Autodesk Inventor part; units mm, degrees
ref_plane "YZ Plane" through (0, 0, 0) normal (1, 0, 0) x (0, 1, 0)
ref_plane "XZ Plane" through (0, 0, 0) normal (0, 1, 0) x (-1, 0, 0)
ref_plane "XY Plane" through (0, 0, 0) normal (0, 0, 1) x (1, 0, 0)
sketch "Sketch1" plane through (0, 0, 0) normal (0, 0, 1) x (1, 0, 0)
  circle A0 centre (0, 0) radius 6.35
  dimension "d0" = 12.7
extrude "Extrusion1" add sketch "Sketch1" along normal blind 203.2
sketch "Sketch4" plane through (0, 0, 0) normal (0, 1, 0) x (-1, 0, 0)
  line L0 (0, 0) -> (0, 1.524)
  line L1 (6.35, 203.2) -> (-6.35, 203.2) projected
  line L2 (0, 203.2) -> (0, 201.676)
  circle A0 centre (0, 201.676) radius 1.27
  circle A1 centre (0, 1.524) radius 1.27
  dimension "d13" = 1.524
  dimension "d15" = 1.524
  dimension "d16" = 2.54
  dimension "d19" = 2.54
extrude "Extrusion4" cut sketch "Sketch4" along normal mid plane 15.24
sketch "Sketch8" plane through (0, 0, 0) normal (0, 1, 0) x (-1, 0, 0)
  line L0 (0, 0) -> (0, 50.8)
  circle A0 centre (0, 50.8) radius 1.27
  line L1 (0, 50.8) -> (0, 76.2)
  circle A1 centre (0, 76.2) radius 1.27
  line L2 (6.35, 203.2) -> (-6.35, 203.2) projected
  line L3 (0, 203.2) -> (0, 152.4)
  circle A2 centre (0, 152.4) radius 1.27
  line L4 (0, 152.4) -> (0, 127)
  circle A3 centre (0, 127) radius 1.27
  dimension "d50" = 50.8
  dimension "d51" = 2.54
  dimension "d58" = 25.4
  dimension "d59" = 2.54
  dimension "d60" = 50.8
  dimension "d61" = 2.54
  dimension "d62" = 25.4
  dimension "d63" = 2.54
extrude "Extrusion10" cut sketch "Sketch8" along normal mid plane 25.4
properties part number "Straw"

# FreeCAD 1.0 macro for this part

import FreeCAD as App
import Part
import Sketcher
from FreeCAD import Vector
Q = App.Units.Quantity

doc = App.newDocument("Part")
body = doc.addObject("PartDesign::Body", "Body")

# Sketch on XY plane
sketch1 = body.newObject("Sketcher::SketchObject", "Sketch")
sketch1.AttachmentSupport = (doc.getObject("XY_Plane"), [""])
sketch1.MapMode = "FlatFace"
sketch1.addGeometry(Part.Circle(Vector(0, 0, 0), Vector(0, 0, 1), 6), False)
sketch1.addConstraint([
    Sketcher.Constraint("Coincident", 0, 3, -1, 1),
    Sketcher.Constraint("Diameter", 0, Q("0.5 in")),
])
pad1 = body.newObject("PartDesign::Pad", "Pad")
pad1.Profile = sketch1
pad1.Length = Q("8 in")

# Sketch on XZ plane
sketch2 = body.newObject("Sketcher::SketchObject", "Sketch001")
sketch2.AttachmentSupport = (doc.getObject("XZ_Plane"), [""])
sketch2.MapMode = "FlatFace"
sketch2.addGeometry([
    Part.Circle(Vector(0, 201.7, 0), Vector(0, 0, 1), 1.3),
    Part.Circle(Vector(0, 1.5, 0), Vector(0, 0, 1), 1.3),
], False)
sketch2.addConstraint([
    Sketcher.Constraint("Equal", 0, 1),
    Sketcher.Constraint("PointOnObject", 0, 3, -2),
    Sketcher.Constraint("PointOnObject", 1, 3, -2),
    Sketcher.Constraint("Diameter", 0, Q("0.1 in")),
    Sketcher.Constraint("DistanceY", -1, 1, 1, 3, Q("0.06 in")),
    Sketcher.Constraint("DistanceY", -1, 1, 0, 3, Q("7.94 in")),
])
pocket1 = body.newObject("PartDesign::Pocket", "Pocket")
pocket1.Profile = sketch2
pocket1.Length = Q("0.6 in")
pocket1.Midplane = True

# Sketch on XZ plane
sketch3 = body.newObject("Sketcher::SketchObject", "Sketch002")
sketch3.AttachmentSupport = (doc.getObject("XZ_Plane"), [""])
sketch3.MapMode = "FlatFace"
sketch3.addGeometry([
    Part.Circle(Vector(0, 50.8, 0), Vector(0, 0, 1), 1.3),
    Part.Circle(Vector(0, 76.2, 0), Vector(0, 0, 1), 1.3),
    Part.Circle(Vector(0, 152.4, 0), Vector(0, 0, 1), 1.3),
    Part.Circle(Vector(0, 127, 0), Vector(0, 0, 1), 1.3),
], False)
sketch3.addConstraint([
    Sketcher.Constraint("Equal", 0, 1),
    Sketcher.Constraint("Equal", 1, 2),
    Sketcher.Constraint("Equal", 2, 3),
    Sketcher.Constraint("PointOnObject", 0, 3, -2),
    Sketcher.Constraint("PointOnObject", 1, 3, -2),
    Sketcher.Constraint("PointOnObject", 2, 3, -2),
    Sketcher.Constraint("PointOnObject", 3, 3, -2),
    Sketcher.Constraint("Diameter", 0, Q("0.1 in")),
    Sketcher.Constraint("DistanceY", -1, 1, 0, 3, Q("2 in")),
    Sketcher.Constraint("DistanceY", 0, 3, 1, 3, Q("1 in")),
    Sketcher.Constraint("DistanceY", 3, 3, 2, 3, Q("1 in")),
    Sketcher.Constraint("DistanceY", 1, 3, 3, 3, Q("2 in")),
])
pocket2 = body.newObject("PartDesign::Pocket", "Pocket001")
pocket2.Profile = sketch3
pocket2.Length = Q("1 in")
pocket2.Midplane = True

doc.recompute()
